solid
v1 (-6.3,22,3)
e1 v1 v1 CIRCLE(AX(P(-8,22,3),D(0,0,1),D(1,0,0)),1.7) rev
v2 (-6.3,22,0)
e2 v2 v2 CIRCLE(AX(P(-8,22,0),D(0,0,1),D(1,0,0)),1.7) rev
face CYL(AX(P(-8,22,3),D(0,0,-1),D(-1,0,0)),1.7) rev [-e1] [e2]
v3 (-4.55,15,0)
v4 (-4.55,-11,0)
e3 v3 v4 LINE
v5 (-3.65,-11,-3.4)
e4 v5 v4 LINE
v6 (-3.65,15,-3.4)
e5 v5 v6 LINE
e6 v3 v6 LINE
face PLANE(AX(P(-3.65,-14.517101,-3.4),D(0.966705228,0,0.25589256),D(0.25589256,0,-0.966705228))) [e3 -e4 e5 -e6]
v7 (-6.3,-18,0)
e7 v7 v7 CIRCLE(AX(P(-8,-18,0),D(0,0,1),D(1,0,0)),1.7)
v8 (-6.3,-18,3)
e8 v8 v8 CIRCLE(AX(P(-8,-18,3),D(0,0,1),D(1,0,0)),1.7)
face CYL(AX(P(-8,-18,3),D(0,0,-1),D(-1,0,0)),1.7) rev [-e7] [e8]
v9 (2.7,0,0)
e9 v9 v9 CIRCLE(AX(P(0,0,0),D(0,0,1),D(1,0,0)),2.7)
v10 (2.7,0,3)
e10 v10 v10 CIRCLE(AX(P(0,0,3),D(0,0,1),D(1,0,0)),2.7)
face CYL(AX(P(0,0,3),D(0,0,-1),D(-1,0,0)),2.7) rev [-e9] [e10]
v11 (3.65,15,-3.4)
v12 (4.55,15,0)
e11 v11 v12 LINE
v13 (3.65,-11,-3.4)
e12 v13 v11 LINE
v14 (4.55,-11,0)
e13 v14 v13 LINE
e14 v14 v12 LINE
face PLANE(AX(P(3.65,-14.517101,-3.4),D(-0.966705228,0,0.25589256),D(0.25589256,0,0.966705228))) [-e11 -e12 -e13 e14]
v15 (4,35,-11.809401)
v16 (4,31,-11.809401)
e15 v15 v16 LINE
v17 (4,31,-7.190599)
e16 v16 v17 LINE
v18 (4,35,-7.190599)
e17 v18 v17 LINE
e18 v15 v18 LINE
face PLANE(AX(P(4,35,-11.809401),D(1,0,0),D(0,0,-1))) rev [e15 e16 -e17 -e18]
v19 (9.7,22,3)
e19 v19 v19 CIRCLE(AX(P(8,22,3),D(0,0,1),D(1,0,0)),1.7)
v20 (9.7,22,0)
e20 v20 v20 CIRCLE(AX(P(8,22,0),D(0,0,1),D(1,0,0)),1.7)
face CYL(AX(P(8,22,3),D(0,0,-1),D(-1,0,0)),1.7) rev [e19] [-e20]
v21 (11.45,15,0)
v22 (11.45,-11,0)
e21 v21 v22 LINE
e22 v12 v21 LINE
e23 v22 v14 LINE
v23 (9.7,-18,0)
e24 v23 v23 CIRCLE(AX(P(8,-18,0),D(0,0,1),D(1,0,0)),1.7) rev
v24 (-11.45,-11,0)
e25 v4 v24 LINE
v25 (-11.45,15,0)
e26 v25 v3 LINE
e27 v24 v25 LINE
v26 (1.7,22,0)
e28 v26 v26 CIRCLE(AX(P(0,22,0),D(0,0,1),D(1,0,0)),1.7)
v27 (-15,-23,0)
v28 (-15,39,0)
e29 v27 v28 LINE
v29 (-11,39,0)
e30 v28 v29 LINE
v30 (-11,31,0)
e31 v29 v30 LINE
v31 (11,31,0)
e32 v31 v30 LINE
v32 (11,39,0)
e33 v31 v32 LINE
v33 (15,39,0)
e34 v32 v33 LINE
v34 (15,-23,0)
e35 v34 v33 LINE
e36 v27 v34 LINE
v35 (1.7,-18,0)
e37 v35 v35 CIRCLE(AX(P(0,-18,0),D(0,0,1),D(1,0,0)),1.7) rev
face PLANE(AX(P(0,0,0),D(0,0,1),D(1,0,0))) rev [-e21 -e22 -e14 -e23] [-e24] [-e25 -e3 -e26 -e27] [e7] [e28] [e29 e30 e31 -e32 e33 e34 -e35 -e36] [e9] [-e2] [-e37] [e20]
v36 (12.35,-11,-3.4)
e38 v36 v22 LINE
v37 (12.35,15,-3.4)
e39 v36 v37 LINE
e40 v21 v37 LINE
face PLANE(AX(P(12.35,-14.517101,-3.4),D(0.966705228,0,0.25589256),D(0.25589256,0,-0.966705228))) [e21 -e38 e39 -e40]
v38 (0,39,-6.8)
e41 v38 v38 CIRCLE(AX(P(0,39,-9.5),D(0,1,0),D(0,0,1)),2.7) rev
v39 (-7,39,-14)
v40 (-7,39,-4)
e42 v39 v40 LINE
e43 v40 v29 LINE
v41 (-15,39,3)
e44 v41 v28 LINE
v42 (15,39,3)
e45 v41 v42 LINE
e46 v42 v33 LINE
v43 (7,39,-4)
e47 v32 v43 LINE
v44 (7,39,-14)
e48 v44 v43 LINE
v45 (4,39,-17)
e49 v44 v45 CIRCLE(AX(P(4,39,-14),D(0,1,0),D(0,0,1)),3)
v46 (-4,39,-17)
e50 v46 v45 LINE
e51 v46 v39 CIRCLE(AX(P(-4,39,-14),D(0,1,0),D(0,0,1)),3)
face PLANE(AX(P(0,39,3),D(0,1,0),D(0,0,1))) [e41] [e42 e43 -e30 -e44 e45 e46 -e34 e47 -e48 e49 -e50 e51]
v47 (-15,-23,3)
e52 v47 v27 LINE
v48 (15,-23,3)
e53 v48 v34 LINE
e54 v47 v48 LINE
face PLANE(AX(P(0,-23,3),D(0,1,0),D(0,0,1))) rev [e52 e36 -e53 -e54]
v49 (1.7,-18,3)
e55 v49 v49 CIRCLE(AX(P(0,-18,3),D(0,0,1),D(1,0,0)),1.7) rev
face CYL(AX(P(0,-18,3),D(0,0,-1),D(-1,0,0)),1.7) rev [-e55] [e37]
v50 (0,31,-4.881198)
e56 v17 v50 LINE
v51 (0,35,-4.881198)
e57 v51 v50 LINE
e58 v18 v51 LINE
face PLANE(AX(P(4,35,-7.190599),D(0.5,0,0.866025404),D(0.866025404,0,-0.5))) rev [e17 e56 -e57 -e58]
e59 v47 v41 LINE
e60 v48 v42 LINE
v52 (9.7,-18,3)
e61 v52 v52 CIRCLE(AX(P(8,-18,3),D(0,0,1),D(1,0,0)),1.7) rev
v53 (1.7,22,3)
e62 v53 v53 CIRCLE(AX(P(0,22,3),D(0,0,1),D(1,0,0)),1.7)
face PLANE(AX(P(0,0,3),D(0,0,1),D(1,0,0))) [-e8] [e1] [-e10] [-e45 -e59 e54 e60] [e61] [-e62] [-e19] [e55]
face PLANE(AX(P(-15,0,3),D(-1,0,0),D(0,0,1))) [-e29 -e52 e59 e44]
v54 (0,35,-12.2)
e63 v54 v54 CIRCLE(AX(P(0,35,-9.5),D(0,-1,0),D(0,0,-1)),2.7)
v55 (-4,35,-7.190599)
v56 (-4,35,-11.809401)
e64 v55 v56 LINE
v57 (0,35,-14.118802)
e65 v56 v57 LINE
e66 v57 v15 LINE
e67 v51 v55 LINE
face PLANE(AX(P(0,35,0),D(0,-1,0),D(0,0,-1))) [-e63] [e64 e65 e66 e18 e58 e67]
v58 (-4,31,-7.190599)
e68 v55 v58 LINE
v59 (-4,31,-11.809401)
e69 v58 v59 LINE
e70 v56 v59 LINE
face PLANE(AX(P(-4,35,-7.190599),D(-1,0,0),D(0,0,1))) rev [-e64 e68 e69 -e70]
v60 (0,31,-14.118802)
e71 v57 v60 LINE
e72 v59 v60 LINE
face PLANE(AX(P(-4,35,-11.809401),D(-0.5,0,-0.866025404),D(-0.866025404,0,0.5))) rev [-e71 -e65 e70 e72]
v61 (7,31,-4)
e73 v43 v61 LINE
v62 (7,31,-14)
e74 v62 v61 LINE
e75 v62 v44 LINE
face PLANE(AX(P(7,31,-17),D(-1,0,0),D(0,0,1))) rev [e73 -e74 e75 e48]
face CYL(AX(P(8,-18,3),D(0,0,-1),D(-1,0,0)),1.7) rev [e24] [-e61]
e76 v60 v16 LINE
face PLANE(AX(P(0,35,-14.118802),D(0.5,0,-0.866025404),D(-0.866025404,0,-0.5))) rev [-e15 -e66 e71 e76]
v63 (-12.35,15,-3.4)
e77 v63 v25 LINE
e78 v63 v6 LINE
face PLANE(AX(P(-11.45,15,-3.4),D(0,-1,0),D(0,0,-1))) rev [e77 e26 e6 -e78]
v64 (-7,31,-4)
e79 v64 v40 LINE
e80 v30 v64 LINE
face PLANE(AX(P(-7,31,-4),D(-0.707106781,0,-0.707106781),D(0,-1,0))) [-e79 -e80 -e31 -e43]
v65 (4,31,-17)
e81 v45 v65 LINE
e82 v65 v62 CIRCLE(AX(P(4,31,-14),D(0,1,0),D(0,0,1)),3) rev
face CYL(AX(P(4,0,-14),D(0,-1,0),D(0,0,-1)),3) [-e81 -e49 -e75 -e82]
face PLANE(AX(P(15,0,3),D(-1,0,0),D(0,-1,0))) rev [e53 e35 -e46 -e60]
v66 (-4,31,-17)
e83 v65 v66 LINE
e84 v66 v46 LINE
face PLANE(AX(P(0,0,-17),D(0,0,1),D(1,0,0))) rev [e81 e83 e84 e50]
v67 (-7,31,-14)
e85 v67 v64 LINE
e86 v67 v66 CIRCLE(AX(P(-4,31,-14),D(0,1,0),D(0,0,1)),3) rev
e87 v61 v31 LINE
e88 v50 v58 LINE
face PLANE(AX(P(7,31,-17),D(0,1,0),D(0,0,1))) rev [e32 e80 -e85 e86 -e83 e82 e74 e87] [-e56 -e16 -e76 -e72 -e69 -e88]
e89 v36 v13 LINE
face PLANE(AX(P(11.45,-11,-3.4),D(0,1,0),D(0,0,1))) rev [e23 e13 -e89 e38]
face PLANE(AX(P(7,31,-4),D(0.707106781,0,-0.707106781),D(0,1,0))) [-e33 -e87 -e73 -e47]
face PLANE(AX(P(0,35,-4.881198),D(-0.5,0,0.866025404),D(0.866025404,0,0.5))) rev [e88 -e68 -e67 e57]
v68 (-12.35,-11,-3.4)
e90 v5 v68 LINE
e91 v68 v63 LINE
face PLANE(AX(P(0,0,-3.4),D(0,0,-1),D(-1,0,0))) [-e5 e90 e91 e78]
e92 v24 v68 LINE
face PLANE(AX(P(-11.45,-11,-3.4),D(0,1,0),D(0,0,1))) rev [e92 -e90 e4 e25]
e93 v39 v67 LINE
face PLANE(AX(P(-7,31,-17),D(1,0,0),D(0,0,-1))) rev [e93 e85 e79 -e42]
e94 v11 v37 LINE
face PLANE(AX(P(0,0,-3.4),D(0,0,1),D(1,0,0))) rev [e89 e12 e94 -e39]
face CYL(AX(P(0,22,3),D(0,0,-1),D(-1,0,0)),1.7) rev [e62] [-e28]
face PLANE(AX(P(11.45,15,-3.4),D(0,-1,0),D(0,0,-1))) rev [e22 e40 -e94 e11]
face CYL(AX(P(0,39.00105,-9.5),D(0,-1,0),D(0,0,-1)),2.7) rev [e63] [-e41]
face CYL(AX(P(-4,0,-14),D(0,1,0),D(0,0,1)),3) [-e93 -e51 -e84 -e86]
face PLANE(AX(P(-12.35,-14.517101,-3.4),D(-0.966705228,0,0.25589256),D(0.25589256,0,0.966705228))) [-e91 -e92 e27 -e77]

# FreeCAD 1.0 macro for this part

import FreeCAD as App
import Part
import Sketcher
from FreeCAD import Vector
Q = App.Units.Quantity


def edges_at(feature, points):
    """Names of the edges that pass closest to the given points."""
    edges = feature.Shape.Edges
    near = lambda p: min(range(len(edges)), key=lambda i: edges[i].distToShape(Part.Vertex(*p))[0])
    return sorted({f"Edge{near(p) + 1}" for p in points})


def add_polygon(sketch, points):
    """Adds a closed chain of lines whose ends are joined by coincident constraints."""
    first, n = sketch.GeometryCount, len(points)
    for a, b in zip(points, points[1:] + points[:1]):
        sketch.addGeometry(Part.LineSegment(App.Vector(*a, 0), App.Vector(*b, 0)), False)
    for i in range(n):
        sketch.addConstraint(Sketcher.Constraint("Coincident", first + i, 2, first + (i + 1) % n, 1))

doc = App.newDocument("Part")
body = doc.addObject("PartDesign::Body", "Body")

sketch1 = body.newObject("Sketcher::SketchObject", "Sketch")
sketch1.AttachmentSupport = (doc.getObject("XY_Plane"), [""])
sketch1.MapMode = "FlatFace"
add_polygon(sketch1, [(-15, -23), (15, -23), (15, 39), (-15, 39)])
sketch1.addGeometry(Part.Circle(Vector(-8, -18, 0), Vector(0, 0, 1), 1.7), False)
sketch1.addGeometry(Part.Circle(Vector(0, -18, 0), Vector(0, 0, 1), 1.7), False)
sketch1.addGeometry(Part.Circle(Vector(8, -18, 0), Vector(0, 0, 1), 1.7), False)
sketch1.addGeometry(Part.Circle(Vector(0, 0, 0), Vector(0, 0, 1), 2.7), False)
sketch1.addGeometry(Part.Circle(Vector(-8, 22, 0), Vector(0, 0, 1), 1.7), False)
sketch1.addGeometry(Part.Circle(Vector(0, 22, 0), Vector(0, 0, 1), 1.7), False)
sketch1.addGeometry(Part.Circle(Vector(8, 22, 0), Vector(0, 0, 1), 1.7), False)
sketch1.addConstraint([
    Sketcher.Constraint("Horizontal", 0),
    Sketcher.Constraint("Vertical", 1),
    Sketcher.Constraint("Horizontal", 2),
    Sketcher.Constraint("Vertical", 3),
    Sketcher.Constraint("Coincident", 7, 3, -1, 1),
    Sketcher.Constraint("Equal", 4, 5),
    Sketcher.Constraint("Equal", 5, 6),
    Sketcher.Constraint("Equal", 6, 8),
    Sketcher.Constraint("Equal", 8, 9),
    Sketcher.Constraint("Equal", 9, 10),
    Sketcher.Constraint("Symmetric", 4, 3, 6, 3, -2),
    Sketcher.Constraint("Symmetric", 8, 3, 10, 3, -2),
    Sketcher.Constraint("PointOnObject", 5, 3, -2),
    Sketcher.Constraint("PointOnObject", 9, 3, -2),
    Sketcher.Constraint("Horizontal", 4, 3, 5, 3),
    Sketcher.Constraint("Horizontal", 8, 3, 9, 3),
    Sketcher.Constraint("Vertical", 4, 3, 8, 3),
    Sketcher.Constraint("Diameter", 4, 3.4),
    Sketcher.Constraint("Diameter", 7, 5.4),
    Sketcher.Constraint("DistanceX", 0, 1, 0, 2, 30.0),
    Sketcher.Constraint("DistanceY", 1, 1, 1, 2, 62.0),
    Sketcher.Constraint("DistanceX", 4, 3, -1, 1, 8.0),
    Sketcher.Constraint("DistanceY", 4, 3, -1, 1, 18.0),
    Sketcher.Constraint("DistanceY", -1, 1, 8, 3, 22.0),
    Sketcher.Constraint("DistanceX", -1, 1, 0, 2, 15.0),
    Sketcher.Constraint("DistanceY", 0, 2, -1, 1, 23.0),
])
pad1 = body.newObject("PartDesign::Pad", "Pad")
pad1.Profile = sketch1
pad1.Length = 3

sketch2 = body.newObject("Sketcher::SketchObject", "Sketch001")
sketch2.AttachmentSupport = (doc.getObject("XY_Plane"), [""])
sketch2.MapMode = "FlatFace"
add_polygon(sketch2, [(7, 39), (7, 31), (-7, 31), (-7, 39)])
sketch2.addConstraint([
    Sketcher.Constraint("Vertical", 0),
    Sketcher.Constraint("Horizontal", 1),
    Sketcher.Constraint("Vertical", 2),
    Sketcher.Constraint("Horizontal", 3),
    Sketcher.Constraint("DistanceX", 1, 2, 1, 1, 14.0),
    Sketcher.Constraint("DistanceY", 0, 2, 0, 1, 8.0),
    Sketcher.Constraint("DistanceX", -1, 1, 0, 2, 7.0),
    Sketcher.Constraint("DistanceY", -1, 1, 0, 2, 31.0),
])
pad2 = body.newObject("PartDesign::Pad", "Pad001")
pad2.Profile = sketch2
pad2.Length = 17
pad2.Reversed = True

sketch3 = body.newObject("Sketcher::SketchObject", "Sketch002")
sketch3.AttachmentSupport = (doc.getObject("XZ_Plane"), [""])
sketch3.MapMode = "FlatFace"
sketch3.AttachmentOffset = App.Placement(Vector(0, 0, -31), App.Rotation())
add_polygon(sketch3, [(4, -11.8), (4, -7.2), (0, -4.9), (-4, -7.2), (-4, -11.8), (0, -14.1)])
sketch3.addConstraint([
    Sketcher.Constraint("Vertical", 0),
    Sketcher.Constraint("Vertical", 3),
    Sketcher.Constraint("Symmetric", 0, 2, 2, 2, -2),
    Sketcher.Constraint("PointOnObject", 1, 2, -2),
    Sketcher.Constraint("PointOnObject", 4, 2, -2),
    Sketcher.Constraint("Parallel", 1, 4),
    Sketcher.Constraint("Parallel", 2, 5),
    Sketcher.Constraint("Angle", 1, Q("150 deg")),
    Sketcher.Constraint("DistanceX", -1, 1, 0, 2, 4.0),
    Sketcher.Constraint("DistanceY", 0, 2, -1, 1, 7.190599),
    Sketcher.Constraint("DistanceY", 3, 2, -1, 1, 11.809401),
])
pocket1 = body.newObject("PartDesign::Pocket", "Pocket")
pocket1.Profile = sketch3
pocket1.Length = 4

sketch4 = body.newObject("Sketcher::SketchObject", "Sketch003")
sketch4.AttachmentSupport = (doc.getObject("XZ_Plane"), [""])
sketch4.MapMode = "FlatFace"
sketch4.AttachmentOffset = App.Placement(Vector(0, 0, -35), App.Rotation())
sketch4.addGeometry(Part.Circle(Vector(0, -9.5, 0), Vector(0, 0, 1), 2.7), False)
sketch4.addConstraint([
    Sketcher.Constraint("PointOnObject", 0, 3, -2),
    Sketcher.Constraint("Diameter", 0, 5.4),
    Sketcher.Constraint("DistanceY", 0, 3, -1, 1, 9.5),
])
pocket2 = body.newObject("PartDesign::Pocket", "Pocket001")
pocket2.Profile = sketch4
pocket2.Type = "UpToFirst"
doc.recompute()

fillet = body.newObject("PartDesign::Fillet", "Fillet")
fillet.Base = (pocket2, edges_at(pocket2, [(-7, 35, -17), (7, 35, -17)]))
fillet.Radius = 3
doc.recompute()

chamfer = body.newObject("PartDesign::Chamfer", "Chamfer")
chamfer.Base = (fillet, edges_at(fillet, [(-7, 35, 0), (7, 35, 0)]))
chamfer.Size = 4

sketch5 = body.newObject("Sketcher::SketchObject", "Sketch004")
sketch5.AttachmentSupport = (doc.getObject("XY_Plane"), [""])
sketch5.MapMode = "FlatFace"
add_polygon(sketch5, [(11, 15), (11, -11), (5, -11), (5, 15)])
add_polygon(sketch5, [(-5, 15), (-5, -11), (-11, -11), (-11, 15)])
sketch5.addConstraint([
    Sketcher.Constraint("Vertical", 0),
    Sketcher.Constraint("Horizontal", 1),
    Sketcher.Constraint("Vertical", 2),
    Sketcher.Constraint("Horizontal", 3),
    Sketcher.Constraint("Vertical", 4),
    Sketcher.Constraint("Horizontal", 5),
    Sketcher.Constraint("Vertical", 6),
    Sketcher.Constraint("Horizontal", 7),
    Sketcher.Constraint("Symmetric", 1, 2, 4, 2, -2),
    Sketcher.Constraint("Symmetric", 3, 2, 6, 2, -2),
    Sketcher.Constraint("DistanceY", 0, 2, 0, 1, 26.0),
    Sketcher.Constraint("DistanceX", 1, 2, 1, 1, 6.9),
    Sketcher.Constraint("DistanceY", 0, 2, -1, 1, 11.0),
    Sketcher.Constraint("DistanceX", 4, 2, 0, 2, 16.0),
])
pad3 = body.newObject("PartDesign::Pad", "Pad002")
pad3.Profile = sketch5
pad3.Length = 3.4
pad3.Reversed = True

sketch6 = body.newObject("Sketcher::SketchObject", "Sketch005")
sketch6.AttachmentSupport = (doc.getObject("XZ_Plane"), [""])
sketch6.MapMode = "FlatFace"
sketch6.AttachmentOffset = App.Placement(Vector(0, 0, -15), App.Rotation())
add_polygon(sketch6, [(11.4, -3.4), (11.4, 0), (12.3, -3.4)])
add_polygon(sketch6, [(3.6, -3.4), (4.5, 0), (4.5, -3.4)])
add_polygon(sketch6, [(-12.3, -3.4), (-11.4, 0), (-11.4, -3.4)])
add_polygon(sketch6, [(-4.5, -3.4), (-4.5, 0), (-3.6, -3.4)])
sketch6.addConstraint([
    Sketcher.Constraint("Vertical", 0),
    Sketcher.Constraint("Horizontal", 2),
    Sketcher.Constraint("Vertical", 4),
    Sketcher.Constraint("Horizontal", 5),
    Sketcher.Constraint("Vertical", 7),
    Sketcher.Constraint("Horizontal", 8),
    Sketcher.Constraint("Vertical", 9),
    Sketcher.Constraint("Horizontal", 11),
    Sketcher.Constraint("Symmetric", 0, 2, 6, 2, -1, 1),
    Sketcher.Constraint("Symmetric", 3, 2, 9, 2, -1, 1),
    Sketcher.Constraint("Symmetric", 1, 2, 8, 2, -2),
    Sketcher.Constraint("Symmetric", 5, 2, 10, 2, -2),
    Sketcher.Constraint("PointOnObject", 0, 2, -1),
    Sketcher.Constraint("PointOnObject", 3, 2, -1),
    Sketcher.Constraint("Parallel", 3, 6),
    Sketcher.Constraint("Horizontal", 2, 2, 4, 2),
    Sketcher.Constraint("DistanceX", 2, 2, 2, 1, 0.9),
    Sketcher.Constraint("DistanceY", 0, 1, 0, 2, 3.4),
    Sketcher.Constraint("DistanceX", 6, 2, 3, 2, 16.0),
    Sketcher.Constraint("DistanceX", 3, 2, 0, 2, 6.9),
])
pad4 = body.newObject("PartDesign::Pad", "Pad003")
pad4.Profile = sketch6
pad4.Length = 26

doc.recompute()
